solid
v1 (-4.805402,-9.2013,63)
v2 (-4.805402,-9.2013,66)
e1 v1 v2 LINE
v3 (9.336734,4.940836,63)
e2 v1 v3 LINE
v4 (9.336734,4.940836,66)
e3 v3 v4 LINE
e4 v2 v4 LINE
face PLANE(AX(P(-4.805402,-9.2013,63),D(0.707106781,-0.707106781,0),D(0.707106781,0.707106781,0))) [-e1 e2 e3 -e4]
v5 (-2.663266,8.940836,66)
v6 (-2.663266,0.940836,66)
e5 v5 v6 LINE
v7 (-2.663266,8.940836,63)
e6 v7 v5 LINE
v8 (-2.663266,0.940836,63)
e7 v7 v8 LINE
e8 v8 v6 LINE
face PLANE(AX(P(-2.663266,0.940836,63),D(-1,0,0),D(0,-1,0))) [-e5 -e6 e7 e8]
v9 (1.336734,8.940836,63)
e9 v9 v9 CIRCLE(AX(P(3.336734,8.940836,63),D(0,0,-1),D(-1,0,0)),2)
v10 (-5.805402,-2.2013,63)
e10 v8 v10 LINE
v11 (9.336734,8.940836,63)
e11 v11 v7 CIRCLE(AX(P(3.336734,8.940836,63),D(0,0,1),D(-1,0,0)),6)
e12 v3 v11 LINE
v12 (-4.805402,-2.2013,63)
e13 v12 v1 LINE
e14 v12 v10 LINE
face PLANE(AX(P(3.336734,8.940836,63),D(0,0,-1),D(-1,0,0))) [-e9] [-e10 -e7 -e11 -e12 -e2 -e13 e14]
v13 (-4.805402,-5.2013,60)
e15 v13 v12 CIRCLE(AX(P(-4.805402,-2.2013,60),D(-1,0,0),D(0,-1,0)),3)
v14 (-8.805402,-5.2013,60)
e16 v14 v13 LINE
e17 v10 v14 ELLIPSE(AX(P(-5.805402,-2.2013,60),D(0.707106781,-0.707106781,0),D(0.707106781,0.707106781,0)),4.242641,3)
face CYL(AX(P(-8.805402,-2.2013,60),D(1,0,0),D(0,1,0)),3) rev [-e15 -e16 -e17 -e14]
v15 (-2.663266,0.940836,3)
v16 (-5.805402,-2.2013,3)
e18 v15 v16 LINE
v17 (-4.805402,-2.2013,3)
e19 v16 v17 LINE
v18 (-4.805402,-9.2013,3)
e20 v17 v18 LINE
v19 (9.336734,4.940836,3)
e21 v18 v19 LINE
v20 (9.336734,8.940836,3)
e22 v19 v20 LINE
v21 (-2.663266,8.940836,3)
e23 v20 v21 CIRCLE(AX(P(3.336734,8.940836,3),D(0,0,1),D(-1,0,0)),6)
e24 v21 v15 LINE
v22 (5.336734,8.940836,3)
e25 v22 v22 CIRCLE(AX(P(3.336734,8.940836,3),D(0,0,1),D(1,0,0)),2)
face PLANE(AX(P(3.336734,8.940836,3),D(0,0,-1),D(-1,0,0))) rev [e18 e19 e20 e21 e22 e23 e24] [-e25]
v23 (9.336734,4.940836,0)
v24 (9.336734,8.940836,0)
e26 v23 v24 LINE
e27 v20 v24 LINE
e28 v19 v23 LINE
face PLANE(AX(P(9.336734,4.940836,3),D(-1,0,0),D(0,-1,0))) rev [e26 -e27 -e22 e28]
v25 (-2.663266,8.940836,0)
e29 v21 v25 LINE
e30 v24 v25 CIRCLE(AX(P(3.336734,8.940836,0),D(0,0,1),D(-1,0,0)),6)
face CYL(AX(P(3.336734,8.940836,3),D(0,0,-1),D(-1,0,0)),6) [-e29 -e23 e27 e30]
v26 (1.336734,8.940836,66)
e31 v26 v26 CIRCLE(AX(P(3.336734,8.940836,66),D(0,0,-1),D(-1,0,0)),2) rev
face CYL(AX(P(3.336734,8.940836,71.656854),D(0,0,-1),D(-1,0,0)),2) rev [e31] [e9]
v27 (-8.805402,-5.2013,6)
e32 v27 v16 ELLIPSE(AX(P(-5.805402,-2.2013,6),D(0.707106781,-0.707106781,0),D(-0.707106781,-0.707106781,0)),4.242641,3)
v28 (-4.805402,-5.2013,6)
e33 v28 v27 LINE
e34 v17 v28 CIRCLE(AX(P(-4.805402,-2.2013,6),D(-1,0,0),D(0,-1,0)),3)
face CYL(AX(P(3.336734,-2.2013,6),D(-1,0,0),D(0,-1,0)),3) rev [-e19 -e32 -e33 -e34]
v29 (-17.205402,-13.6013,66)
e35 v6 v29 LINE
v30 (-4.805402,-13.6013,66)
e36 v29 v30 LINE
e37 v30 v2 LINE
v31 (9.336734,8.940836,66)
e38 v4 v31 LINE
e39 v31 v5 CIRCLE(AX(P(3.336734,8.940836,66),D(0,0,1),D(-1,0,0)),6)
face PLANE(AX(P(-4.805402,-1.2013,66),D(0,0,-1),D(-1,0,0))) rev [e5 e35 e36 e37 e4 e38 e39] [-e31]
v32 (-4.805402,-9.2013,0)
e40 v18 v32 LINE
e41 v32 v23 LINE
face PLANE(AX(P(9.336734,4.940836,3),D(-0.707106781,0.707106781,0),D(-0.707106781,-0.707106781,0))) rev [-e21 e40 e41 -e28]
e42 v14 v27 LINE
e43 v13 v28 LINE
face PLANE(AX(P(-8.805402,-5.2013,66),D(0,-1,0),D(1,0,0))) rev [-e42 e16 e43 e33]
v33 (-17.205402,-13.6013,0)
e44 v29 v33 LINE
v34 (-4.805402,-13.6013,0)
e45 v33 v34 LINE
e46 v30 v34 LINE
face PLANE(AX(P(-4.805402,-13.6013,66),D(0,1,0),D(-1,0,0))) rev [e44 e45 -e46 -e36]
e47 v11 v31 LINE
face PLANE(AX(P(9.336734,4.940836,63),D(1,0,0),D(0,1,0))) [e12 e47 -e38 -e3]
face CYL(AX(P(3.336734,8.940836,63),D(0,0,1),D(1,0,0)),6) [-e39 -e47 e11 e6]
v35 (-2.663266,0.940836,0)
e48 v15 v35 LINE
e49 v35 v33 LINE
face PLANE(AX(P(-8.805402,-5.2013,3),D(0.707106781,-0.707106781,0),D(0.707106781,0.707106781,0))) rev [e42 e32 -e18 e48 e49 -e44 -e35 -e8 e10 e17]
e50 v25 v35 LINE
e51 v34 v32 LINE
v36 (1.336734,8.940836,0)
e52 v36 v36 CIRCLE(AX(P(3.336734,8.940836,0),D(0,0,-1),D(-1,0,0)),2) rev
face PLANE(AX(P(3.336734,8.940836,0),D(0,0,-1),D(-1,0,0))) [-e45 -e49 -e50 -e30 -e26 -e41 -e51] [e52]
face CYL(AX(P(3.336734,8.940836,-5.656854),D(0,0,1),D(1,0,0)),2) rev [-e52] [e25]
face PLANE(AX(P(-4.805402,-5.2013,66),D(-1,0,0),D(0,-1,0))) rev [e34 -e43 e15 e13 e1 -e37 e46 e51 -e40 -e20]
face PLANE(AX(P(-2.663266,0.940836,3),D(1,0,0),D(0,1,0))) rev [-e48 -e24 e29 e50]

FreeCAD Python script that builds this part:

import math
import FreeCAD as App
import Part
import Sketcher

V = App.Vector
Q = App.Units.Quantity


def edges_at(feature, points):
    """Names of the edges that pass closest to the given points."""
    edges = feature.Shape.Edges
    near = lambda p: min(range(len(edges)), key=lambda i: edges[i].distToShape(Part.Vertex(*p))[0])
    return sorted({f"Edge{near(p) + 1}" for p in points})


def add_polygon(sketch, points):
    """Adds a closed chain of lines whose ends are joined by coincident constraints."""
    first, n = sketch.GeometryCount, len(points)
    for a, b in zip(points, points[1:] + points[:1]):
        sketch.addGeometry(Part.LineSegment(App.Vector(*a, 0), App.Vector(*b, 0)), False)
    for i in range(n):
        sketch.addConstraint(Sketcher.Constraint("Coincident", first + i, 2, first + (i + 1) % n, 1))

doc = App.newDocument("Part")
body = doc.addObject("PartDesign::Body", "Body")

sketch1 = doc.addObject("Sketcher::SketchObject", "Sketch")
body.addObject(sketch1)
sketch1.AttachmentSupport = (doc.XY_Plane, [""])
sketch1.MapMode = "FlatFace"
sketch1.addGeometry([
    Part.LineSegment(V(-2.663266, 0.940836, 0), V(-8.805402, -5.2013, 0)),
    Part.LineSegment(V(-8.805402, -5.2013, 0), V(-4.805402, -5.2013, 0)),
    Part.LineSegment(V(-4.805402, -5.2013, 0), V(-4.805402, -9.2013, 0)),
    Part.LineSegment(V(-4.805402, -9.2013, 0), V(9.336734, 4.940836, 0)),
    Part.LineSegment(V(9.336734, 4.940836, 0), V(9.336734, 8.940836, 0)),
    Part.ArcOfCircle(Part.Circle(V(3.336734, 8.940836, 0), V(0, 0, 1), 6), math.radians(0), math.radians(180)),
    Part.LineSegment(V(-2.663266, 8.940836, 0), V(-2.663266, 0.940836, 0)),
], False)
sketch1.addConstraint([
    Sketcher.Constraint("Coincident", 0, 2, 1, 1),
    Sketcher.Constraint("Coincident", 1, 2, 2, 1),
    Sketcher.Constraint("Coincident", 2, 2, 3, 1),
    Sketcher.Constraint("Coincident", 3, 2, 4, 1),
    Sketcher.Constraint("Tangent", 4, 2, 5, 1),
    Sketcher.Constraint("Tangent", 5, 2, 6, 1),
    Sketcher.Constraint("Coincident", 6, 2, 0, 1),
    Sketcher.Constraint("Horizontal", 1),
    Sketcher.Constraint("Vertical", 2),
    Sketcher.Constraint("Vertical", 4),
    Sketcher.Constraint("Vertical", 6),
    Sketcher.Constraint("Parallel", 0, 3),
    Sketcher.Constraint("Equal", 1, 2),
    Sketcher.Constraint("Equal", 2, 4),
    Sketcher.Constraint("Radius", 5, Q("6 mm")),
    Sketcher.Constraint("DistanceX", 1, 1, 1, 2, Q("4 mm")),
    Sketcher.Constraint("DistanceY", 6, 2, 6, 1, Q("8 mm")),
    Sketcher.Constraint("Distance", 3, Q("20 mm")),
    Sketcher.Constraint("DistanceX", 0, 2, -1, 1, Q("8.805402 mm")),
    Sketcher.Constraint("DistanceY", 0, 2, -1, 1, Q("5.2013 mm")),
])
pad1 = doc.addObject("PartDesign::Pad", "Pad")
body.addObject(pad1)
pad1.Profile = sketch1
pad1.Length = 3

sketch2 = doc.addObject("Sketcher::SketchObject", "Sketch001")
body.addObject(sketch2)
sketch2.AttachmentSupport = (doc.XY_Plane, [""])
sketch2.MapMode = "FlatFace"
add_polygon(sketch2, [(-4.805402, -5.2013), (-8.805402, -5.2013), (-17.205402, -13.6013), (-4.805402, -13.6013)])
sketch2.addConstraint([
    Sketcher.Constraint("Horizontal", 0),
    Sketcher.Constraint("Horizontal", 2),
    Sketcher.Constraint("Vertical", 3),
    Sketcher.Constraint("DistanceX", 0, 2, 0, 1, Q("4 mm")),
    Sketcher.Constraint("Angle", 1, Q("-135 deg")),
    Sketcher.Constraint("DistanceX", 2, 1, 2, 2, Q("12.4 mm")),
    Sketcher.Constraint("DistanceX", 0, 2, -1, 1, Q("8.805402 mm")),
    Sketcher.Constraint("DistanceY", 0, 2, -1, 1, Q("5.2013 mm")),
])
pad2 = doc.addObject("PartDesign::Pad", "Pad001")
body.addObject(pad2)
pad2.Profile = sketch2
pad2.Length = 66

sketch3 = doc.addObject("Sketcher::SketchObject", "Sketch002")
body.addObject(sketch3)
sketch3.AttachmentSupport = (doc.XY_Plane, [""])
sketch3.MapMode = "FlatFace"
sketch3.AttachmentOffset = App.Placement(V(0, 0, 63), App.Rotation())
sketch3.addGeometry([
    Part.LineSegment(V(-8.805402, -5.2013, 0), V(-4.805402, -5.2013, 0)),
    Part.LineSegment(V(-4.805402, -5.2013, 0), V(-4.805402, -9.2013, 0)),
    Part.LineSegment(V(-4.805402, -9.2013, 0), V(9.336734, 4.940836, 0)),
    Part.LineSegment(V(9.336734, 4.940836, 0), V(9.336734, 8.940836, 0)),
    Part.ArcOfCircle(Part.Circle(V(3.336734, 8.940836, 0), V(0, 0, 1), 6), math.radians(0), math.radians(180)),
    Part.LineSegment(V(-2.663266, 8.940836, 0), V(-2.663266, 0.940836, 0)),
    Part.LineSegment(V(-2.663266, 0.940836, 0), V(-8.805402, -5.2013, 0)),
], False)
sketch3.addConstraint([
    Sketcher.Constraint("Coincident", 0, 2, 1, 1),
    Sketcher.Constraint("Coincident", 1, 2, 2, 1),
    Sketcher.Constraint("Coincident", 2, 2, 3, 1),
    Sketcher.Constraint("Tangent", 3, 2, 4, 1),
    Sketcher.Constraint("Tangent", 4, 2, 5, 1),
    Sketcher.Constraint("Coincident", 5, 2, 6, 1),
    Sketcher.Constraint("Coincident", 6, 2, 0, 1),
    Sketcher.Constraint("Horizontal", 0),
    Sketcher.Constraint("Vertical", 1),
    Sketcher.Constraint("Vertical", 3),
    Sketcher.Constraint("Vertical", 5),
    Sketcher.Constraint("Parallel", 2, 6),
    Sketcher.Constraint("Equal", 0, 1),
    Sketcher.Constraint("Equal", 1, 3),
    Sketcher.Constraint("Radius", 4, Q("6 mm")),
    Sketcher.Constraint("DistanceX", 0, 1, 0, 2, Q("4 mm")),
    Sketcher.Constraint("DistanceY", 5, 2, 5, 1, Q("8 mm")),
    Sketcher.Constraint("Distance", 2, Q("20 mm")),
    Sketcher.Constraint("DistanceX", 0, 2, -1, 1, Q("4.805402 mm")),
    Sketcher.Constraint("DistanceY", 0, 2, -1, 1, Q("5.2013 mm")),
])
pad3 = doc.addObject("PartDesign::Pad", "Pad002")
body.addObject(pad3)
pad3.Profile = sketch3
pad3.Length = 3

sketch4 = doc.addObject("Sketcher::SketchObject", "Sketch003")
body.addObject(sketch4)
sketch4.AttachmentSupport = (doc.XY_Plane, [""])
sketch4.MapMode = "FlatFace"
sketch4.AttachmentOffset = App.Placement(V(0, 0, 3), App.Rotation())
sketch4.addGeometry(Part.Circle(V(3.336734, 8.940836, 0), V(0, 0, 1), 2), False)
sketch4.addConstraint([
    Sketcher.Constraint("Diameter", 0, Q("4 mm")),
    Sketcher.Constraint("DistanceX", -1, 1, 0, 3, Q("3.336734 mm")),
    Sketcher.Constraint("DistanceY", -1, 1, 0, 3, Q("8.940836 mm")),
])
pocket1 = doc.addObject("PartDesign::Pocket", "Pocket")
body.addObject(pocket1)
pocket1.Profile = sketch4
pocket1.Length = 3

sketch5 = doc.addObject("Sketcher::SketchObject", "Sketch004")
body.addObject(sketch5)
sketch5.AttachmentSupport = (doc.XY_Plane, [""])
sketch5.MapMode = "FlatFace"
sketch5.AttachmentOffset = App.Placement(V(0, 0, 66), App.Rotation())
sketch5.addGeometry(Part.Circle(V(3.336734, 8.940836, 0), V(0, 0, 1), 2), False)
sketch5.addConstraint([
    Sketcher.Constraint("Diameter", 0, Q("4 mm")),
    Sketcher.Constraint("DistanceX", -1, 1, 0, 3, Q("3.336734 mm")),
    Sketcher.Constraint("DistanceY", -1, 1, 0, 3, Q("8.940836 mm")),
])
pocket2 = doc.addObject("PartDesign::Pocket", "Pocket001")
body.addObject(pocket2)
pocket2.Profile = sketch5
pocket2.Length = 3
doc.recompute()

fillet = doc.addObject("PartDesign::Fillet", "Fillet")
body.addObject(fillet)
fillet.Base = (pocket2, edges_at(pocket2, [(-6.805, -5.201, 3), (-6.805, -5.201, 63)]))
fillet.Radius = 3

doc.recompute()
